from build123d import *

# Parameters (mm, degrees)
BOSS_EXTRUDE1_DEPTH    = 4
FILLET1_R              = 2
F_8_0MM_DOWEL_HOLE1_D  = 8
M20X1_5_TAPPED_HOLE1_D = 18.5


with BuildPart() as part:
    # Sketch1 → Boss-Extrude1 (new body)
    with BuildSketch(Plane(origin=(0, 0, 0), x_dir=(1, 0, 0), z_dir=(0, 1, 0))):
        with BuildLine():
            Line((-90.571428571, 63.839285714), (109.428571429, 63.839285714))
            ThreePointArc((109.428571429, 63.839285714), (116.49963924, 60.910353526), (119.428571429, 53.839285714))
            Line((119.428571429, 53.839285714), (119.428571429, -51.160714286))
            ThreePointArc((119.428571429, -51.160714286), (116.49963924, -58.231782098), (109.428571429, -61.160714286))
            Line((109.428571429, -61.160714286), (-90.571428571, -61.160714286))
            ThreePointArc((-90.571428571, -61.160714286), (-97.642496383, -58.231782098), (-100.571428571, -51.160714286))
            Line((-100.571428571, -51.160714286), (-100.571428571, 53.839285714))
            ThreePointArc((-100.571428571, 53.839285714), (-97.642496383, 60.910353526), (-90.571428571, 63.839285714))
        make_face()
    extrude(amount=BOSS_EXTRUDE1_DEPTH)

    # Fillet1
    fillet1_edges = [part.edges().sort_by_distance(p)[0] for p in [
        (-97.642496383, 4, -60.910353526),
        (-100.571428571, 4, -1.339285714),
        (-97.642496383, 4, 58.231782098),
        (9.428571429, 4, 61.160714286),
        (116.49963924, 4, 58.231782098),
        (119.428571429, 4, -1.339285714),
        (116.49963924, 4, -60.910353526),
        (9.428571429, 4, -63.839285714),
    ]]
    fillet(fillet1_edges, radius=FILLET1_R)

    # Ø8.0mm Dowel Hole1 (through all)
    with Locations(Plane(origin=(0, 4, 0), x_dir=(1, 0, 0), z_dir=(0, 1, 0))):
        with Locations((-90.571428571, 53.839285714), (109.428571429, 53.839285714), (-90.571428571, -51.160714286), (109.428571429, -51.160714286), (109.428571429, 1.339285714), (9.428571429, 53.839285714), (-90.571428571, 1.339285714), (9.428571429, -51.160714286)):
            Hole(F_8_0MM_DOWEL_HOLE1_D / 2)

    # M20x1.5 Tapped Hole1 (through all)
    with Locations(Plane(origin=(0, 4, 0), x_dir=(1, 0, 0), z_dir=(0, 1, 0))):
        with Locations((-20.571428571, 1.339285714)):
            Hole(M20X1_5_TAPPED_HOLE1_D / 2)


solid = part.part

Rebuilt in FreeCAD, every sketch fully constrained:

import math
import FreeCAD as App
import Part
import Sketcher

V = App.Vector
Q = App.Units.Quantity


def edges_at(feature, points):
    """Names of the edges that pass closest to the given points."""
    edges = feature.Shape.Edges
    near = lambda p: min(range(len(edges)), key=lambda i: edges[i].distToShape(Part.Vertex(*p))[0])
    return sorted({f"Edge{near(p) + 1}" for p in points})

doc = App.newDocument("Part")
params = doc.addObject("Spreadsheet::Sheet", "Params")
for row, (alias, value) in enumerate([
    ("sketch1_radius", "10 mm"),
    ("sketch1_width", "200 mm"),
    ("sketch1_height", "105 mm"),
    ("pad1_length", "4 mm"),
    ("fillet_radius", "2 mm"),
    ("sketch2_diameter", "8 mm"),
    ("hole_diameter", "8 mm"),
    ("sketch3_diameter", "18.5 mm"),
    ("hole2_diameter", "18.5 mm"),
], start=1):
    params.set(f"A{row}", alias)
    params.set(f"B{row}", "=" + value)
    params.setAlias(f"B{row}", alias)

body = doc.addObject("PartDesign::Body", "Body")

sketch1 = body.newObject("Sketcher::SketchObject", "Sketch")
sketch1.AttachmentSupport = (doc.getObject("XZ_Plane"), [""])
sketch1.MapMode = "FlatFace"
sketch1.addGeometry([
    Part.LineSegment(V(109, -64, 0), V(-91, -64, 0)),
    Part.ArcOfCircle(Part.Circle(V(-91, -54, 0), V(0, 0, 1), 10), math.radians(180), math.radians(270)),
    Part.LineSegment(V(-101, -54, 0), V(-101, 51, 0)),
    Part.ArcOfCircle(Part.Circle(V(-91, 51, 0), V(0, 0, 1), 10), math.radians(90), math.radians(180)),
    Part.LineSegment(V(-91, 61, 0), V(109, 61, 0)),
    Part.ArcOfCircle(Part.Circle(V(109, 51, 0), V(0, 0, 1), 10), math.radians(0), math.radians(90)),
    Part.LineSegment(V(119, 51, 0), V(119, -54, 0)),
    Part.ArcOfCircle(Part.Circle(V(109, -54, 0), V(0, 0, 1), 10), math.radians(-90), math.radians(0)),
], False)
sketch1.addConstraint([
    Sketcher.Constraint("Tangent", 0, 2, 1, 2),
    Sketcher.Constraint("Tangent", 1, 1, 2, 1),
    Sketcher.Constraint("Tangent", 2, 2, 3, 2),
    Sketcher.Constraint("Tangent", 3, 1, 4, 1),
    Sketcher.Constraint("Tangent", 4, 2, 5, 2),
    Sketcher.Constraint("Tangent", 5, 1, 6, 1),
    Sketcher.Constraint("Tangent", 6, 2, 7, 2),
    Sketcher.Constraint("Tangent", 7, 1, 0, 1),
    Sketcher.Constraint("Horizontal", 0),
    Sketcher.Constraint("Vertical", 2),
    Sketcher.Constraint("Horizontal", 4),
    Sketcher.Constraint("Vertical", 6),
    Sketcher.Constraint("Equal", 1, 3),
    Sketcher.Constraint("Equal", 3, 5),
    Sketcher.Constraint("Equal", 5, 7),
    Sketcher.Constraint("Radius", 1, Q("10 mm")),
    Sketcher.Constraint("DistanceX", 0, 2, 0, 1, Q("200 mm")),
    Sketcher.Constraint("DistanceY", 2, 1, 2, 2, Q("105 mm")),
    Sketcher.Constraint("DistanceX", 1, 3, -1, 1, Q("90.571429 mm")),
    Sketcher.Constraint("DistanceY", 1, 3, -1, 1, Q("53.839286 mm")),
])
sketch1.setExpression("Constraints[15]", "Params.sketch1_radius")
sketch1.setExpression("Constraints[16]", "Params.sketch1_width")
sketch1.setExpression("Constraints[17]", "Params.sketch1_height")
pad1 = body.newObject("PartDesign::Pad", "Pad")
pad1.Profile = sketch1
pad1.setExpression("Length", "Params.pad1_length")
pad1.Reversed = True
doc.recompute()

fillet = body.newObject("PartDesign::Fillet", "Fillet")
fillet.Base = (pad1, edges_at(pad1, [
    (-97.642, 4, -60.91),
    (-100.571, 4, -1.339),
    (-97.642, 4, 58.232),
    (9.429, 4, 61.161),
    (116.5, 4, 58.232),
    (119.429, 4, -1.339),
    (116.5, 4, -60.91),
    (9.429, 4, -63.839),
]))
fillet.setExpression("Radius", "Params.fillet_radius")

sketch2 = body.newObject("Sketcher::SketchObject", "Sketch001")
sketch2.AttachmentSupport = (doc.getObject("XZ_Plane"), [""])
sketch2.MapMode = "FlatFace"
sketch2.AttachmentOffset = App.Placement(V(0, 0, -4), App.Rotation())
sketch2.addGeometry([
    Part.Circle(V(-90.6, -53.8, 0), V(0, 0, 1), 4),
    Part.Circle(V(109.4, -53.8, 0), V(0, 0, 1), 4),
    Part.Circle(V(-90.6, 51.2, 0), V(0, 0, 1), 4),
    Part.Circle(V(109.4, 51.2, 0), V(0, 0, 1), 4),
    Part.Circle(V(109.4, -1.3, 0), V(0, 0, 1), 4),
    Part.Circle(V(9.4, -53.8, 0), V(0, 0, 1), 4),
    Part.Circle(V(-90.6, -1.3, 0), V(0, 0, 1), 4),
    Part.Circle(V(9.4, 51.2, 0), V(0, 0, 1), 4),
], False)
sketch2.addConstraint([
    Sketcher.Constraint("Equal", 0, 1),
    Sketcher.Constraint("Equal", 1, 2),
    Sketcher.Constraint("Equal", 2, 3),
    Sketcher.Constraint("Equal", 3, 4),
    Sketcher.Constraint("Equal", 4, 5),
    Sketcher.Constraint("Equal", 5, 6),
    Sketcher.Constraint("Equal", 6, 7),
    Sketcher.Constraint("Horizontal", 0, 3, 1, 3),
    Sketcher.Constraint("Horizontal", 2, 3, 3, 3),
    Sketcher.Constraint("Horizontal", 1, 3, 5, 3),
    Sketcher.Constraint("Horizontal", 4, 3, 6, 3),
    Sketcher.Constraint("Horizontal", 3, 3, 7, 3),
    Sketcher.Constraint("Vertical", 0, 3, 2, 3),
    Sketcher.Constraint("Vertical", 1, 3, 3, 3),
    Sketcher.Constraint("Vertical", 3, 3, 4, 3),
    Sketcher.Constraint("Vertical", 2, 3, 6, 3),
    Sketcher.Constraint("Vertical", 5, 3, 7, 3),
    Sketcher.Constraint("Diameter", 0, Q("8 mm")),
    Sketcher.Constraint("DistanceX", 0, 3, 1, 3, Q("200 mm")),
    Sketcher.Constraint("DistanceY", 0, 3, 2, 3, Q("105 mm")),
    Sketcher.Constraint("DistanceX", 0, 3, 5, 3, Q("100 mm")),
    Sketcher.Constraint("DistanceY", 1, 3, 4, 3, Q("52.5 mm")),
    Sketcher.Constraint("DistanceX", 0, 3, -1, 1, Q("90.571429 mm")),
    Sketcher.Constraint("DistanceY", 0, 3, -1, 1, Q("53.839286 mm")),
])
sketch2.setExpression("Constraints[17]", "Params.sketch2_diameter")
doc.recompute()
hole = body.newObject("PartDesign::Hole", "Hole")
hole.Profile = sketch2
hole.ThreadType = "None"
hole.setExpression("Diameter", "Params.hole_diameter")
hole.DepthType = "ThroughAll"
hole.Reversed = True

sketch3 = body.newObject("Sketcher::SketchObject", "Sketch002")
sketch3.AttachmentSupport = (doc.getObject("XZ_Plane"), [""])
sketch3.MapMode = "FlatFace"
sketch3.AttachmentOffset = App.Placement(V(0, 0, -4), App.Rotation())
sketch3.addGeometry(Part.Circle(V(-21, -1, 0), V(0, 0, 1), 9), False)
sketch3.addConstraint([
    Sketcher.Constraint("Diameter", 0, Q("18.5 mm")),
    Sketcher.Constraint("DistanceX", 0, 3, -1, 1, Q("20.571429 mm")),
    Sketcher.Constraint("DistanceY", 0, 3, -1, 1, Q("1.339286 mm")),
])
sketch3.setExpression("Constraints[0]", "Params.sketch3_diameter")
doc.recompute()
hole2 = body.newObject("PartDesign::Hole", "Hole001")
hole2.Profile = sketch3
hole2.ThreadType = "None"
hole2.setExpression("Diameter", "Params.hole2_diameter")
hole2.DepthType = "ThroughAll"
hole2.Reversed = True

doc.recompute()
